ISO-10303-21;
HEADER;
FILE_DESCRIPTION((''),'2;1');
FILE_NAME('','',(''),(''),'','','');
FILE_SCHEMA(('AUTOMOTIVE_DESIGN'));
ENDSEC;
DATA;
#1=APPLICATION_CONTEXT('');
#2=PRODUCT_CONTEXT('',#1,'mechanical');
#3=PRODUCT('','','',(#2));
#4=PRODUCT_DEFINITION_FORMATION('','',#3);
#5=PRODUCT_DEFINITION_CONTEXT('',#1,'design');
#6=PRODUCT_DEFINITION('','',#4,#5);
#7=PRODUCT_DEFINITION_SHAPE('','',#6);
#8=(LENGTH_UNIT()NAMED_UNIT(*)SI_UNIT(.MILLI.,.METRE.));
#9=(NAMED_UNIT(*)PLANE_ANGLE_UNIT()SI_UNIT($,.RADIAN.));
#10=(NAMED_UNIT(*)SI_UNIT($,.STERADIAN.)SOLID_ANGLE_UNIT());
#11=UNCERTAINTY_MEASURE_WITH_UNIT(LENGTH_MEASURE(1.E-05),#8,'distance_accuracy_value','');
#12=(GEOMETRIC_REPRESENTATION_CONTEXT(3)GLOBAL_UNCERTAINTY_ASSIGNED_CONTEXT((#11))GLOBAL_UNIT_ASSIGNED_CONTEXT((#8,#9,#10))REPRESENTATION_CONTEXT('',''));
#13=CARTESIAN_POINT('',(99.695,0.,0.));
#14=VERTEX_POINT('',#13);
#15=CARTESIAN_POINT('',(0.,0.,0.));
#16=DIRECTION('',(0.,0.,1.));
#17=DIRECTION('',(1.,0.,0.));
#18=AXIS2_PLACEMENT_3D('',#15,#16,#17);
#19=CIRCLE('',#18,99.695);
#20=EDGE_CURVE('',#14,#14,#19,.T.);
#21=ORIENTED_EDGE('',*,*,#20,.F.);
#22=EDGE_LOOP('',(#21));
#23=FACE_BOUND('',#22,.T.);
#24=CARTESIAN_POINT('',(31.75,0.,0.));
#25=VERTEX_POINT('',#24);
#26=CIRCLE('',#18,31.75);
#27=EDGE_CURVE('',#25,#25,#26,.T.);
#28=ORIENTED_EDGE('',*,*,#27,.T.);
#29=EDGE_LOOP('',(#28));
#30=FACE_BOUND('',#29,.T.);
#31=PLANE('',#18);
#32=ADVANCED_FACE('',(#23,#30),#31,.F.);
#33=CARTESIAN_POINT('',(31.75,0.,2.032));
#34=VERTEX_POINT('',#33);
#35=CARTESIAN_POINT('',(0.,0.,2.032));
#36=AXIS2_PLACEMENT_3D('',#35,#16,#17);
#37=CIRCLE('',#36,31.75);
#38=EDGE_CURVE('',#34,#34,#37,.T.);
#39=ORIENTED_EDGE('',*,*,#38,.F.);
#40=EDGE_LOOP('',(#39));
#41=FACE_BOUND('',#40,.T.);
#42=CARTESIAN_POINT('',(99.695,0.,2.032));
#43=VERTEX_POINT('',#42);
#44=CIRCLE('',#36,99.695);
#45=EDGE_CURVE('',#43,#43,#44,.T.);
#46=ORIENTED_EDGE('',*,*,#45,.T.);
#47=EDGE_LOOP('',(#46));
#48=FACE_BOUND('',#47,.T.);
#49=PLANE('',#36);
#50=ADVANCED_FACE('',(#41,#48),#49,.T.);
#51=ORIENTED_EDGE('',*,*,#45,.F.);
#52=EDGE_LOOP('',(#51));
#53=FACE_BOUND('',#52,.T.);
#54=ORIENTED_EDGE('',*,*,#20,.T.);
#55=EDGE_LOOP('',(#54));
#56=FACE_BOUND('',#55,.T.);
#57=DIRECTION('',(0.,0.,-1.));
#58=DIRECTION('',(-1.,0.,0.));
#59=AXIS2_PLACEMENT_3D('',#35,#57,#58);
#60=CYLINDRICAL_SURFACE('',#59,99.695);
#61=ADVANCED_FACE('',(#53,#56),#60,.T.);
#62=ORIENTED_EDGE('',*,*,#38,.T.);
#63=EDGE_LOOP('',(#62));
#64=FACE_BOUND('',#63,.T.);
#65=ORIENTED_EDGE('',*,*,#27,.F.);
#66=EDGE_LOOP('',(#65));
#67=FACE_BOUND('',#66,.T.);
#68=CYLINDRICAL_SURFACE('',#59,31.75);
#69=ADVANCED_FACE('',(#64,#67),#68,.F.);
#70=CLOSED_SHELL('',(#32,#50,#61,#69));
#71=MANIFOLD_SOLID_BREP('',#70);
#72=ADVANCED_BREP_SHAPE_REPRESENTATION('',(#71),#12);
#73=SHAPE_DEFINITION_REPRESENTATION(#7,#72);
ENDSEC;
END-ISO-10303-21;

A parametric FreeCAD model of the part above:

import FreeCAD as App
import Part
import Sketcher
from FreeCAD import Vector
Q = App.Units.Quantity

doc = App.newDocument("Part")
body = doc.addObject("PartDesign::Body", "Body")

# Sketch on XY plane
sketch1 = body.newObject("Sketcher::SketchObject", "Sketch")
sketch1.AttachmentSupport = (doc.getObject("XY_Plane"), [""])
sketch1.MapMode = "FlatFace"
sketch1.addGeometry([
    Part.Circle(Vector(0, 0, 0), Vector(0, 0, 1), 100),
    Part.Circle(Vector(0, 0, 0), Vector(0, 0, 1), 32),
], False)
sketch1.addConstraint([
    Sketcher.Constraint("Coincident", 0, 3, -1, 1),
    Sketcher.Constraint("Coincident", 1, 3, -1, 1),
    Sketcher.Constraint("Diameter", 1, Q("2.5 in")),
    Sketcher.Constraint("Diameter", 0, Q("7.85 in")),
])
pad1 = body.newObject("PartDesign::Pad", "Pad")
pad1.Profile = sketch1
pad1.Length = Q("0.08 in")

doc.recompute()
